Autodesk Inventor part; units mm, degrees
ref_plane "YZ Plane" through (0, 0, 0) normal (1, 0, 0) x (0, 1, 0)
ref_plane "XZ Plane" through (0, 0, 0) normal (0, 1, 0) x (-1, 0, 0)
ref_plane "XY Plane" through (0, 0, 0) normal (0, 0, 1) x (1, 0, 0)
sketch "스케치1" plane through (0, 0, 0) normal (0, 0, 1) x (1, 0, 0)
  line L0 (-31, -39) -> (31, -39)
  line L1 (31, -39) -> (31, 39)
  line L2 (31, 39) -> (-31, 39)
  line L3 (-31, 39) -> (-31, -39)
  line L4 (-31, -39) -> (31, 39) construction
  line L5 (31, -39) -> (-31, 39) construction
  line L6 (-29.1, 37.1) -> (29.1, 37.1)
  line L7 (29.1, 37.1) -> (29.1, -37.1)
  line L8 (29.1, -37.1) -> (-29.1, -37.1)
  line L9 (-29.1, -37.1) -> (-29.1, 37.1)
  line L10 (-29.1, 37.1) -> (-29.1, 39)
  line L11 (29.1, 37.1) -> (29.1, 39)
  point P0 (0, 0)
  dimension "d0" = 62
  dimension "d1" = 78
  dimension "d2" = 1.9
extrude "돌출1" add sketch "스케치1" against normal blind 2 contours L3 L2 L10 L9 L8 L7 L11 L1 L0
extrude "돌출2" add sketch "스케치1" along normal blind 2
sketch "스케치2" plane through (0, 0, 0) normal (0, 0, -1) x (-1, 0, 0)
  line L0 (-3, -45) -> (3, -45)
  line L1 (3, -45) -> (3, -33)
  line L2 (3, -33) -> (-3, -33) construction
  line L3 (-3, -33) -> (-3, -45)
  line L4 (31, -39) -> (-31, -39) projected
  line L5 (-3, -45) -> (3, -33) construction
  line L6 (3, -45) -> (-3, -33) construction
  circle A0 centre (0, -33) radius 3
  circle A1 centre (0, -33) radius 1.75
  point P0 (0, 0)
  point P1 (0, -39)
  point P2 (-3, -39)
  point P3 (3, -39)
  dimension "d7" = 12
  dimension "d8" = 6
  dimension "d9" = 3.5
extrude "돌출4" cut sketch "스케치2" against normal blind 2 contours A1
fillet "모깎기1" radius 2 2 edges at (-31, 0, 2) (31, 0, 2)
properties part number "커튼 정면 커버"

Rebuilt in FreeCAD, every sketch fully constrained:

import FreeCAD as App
import Part
import Sketcher
from FreeCAD import Vector


def edges_at(feature, points):
    """Names of the edges that pass closest to the given points."""
    edges = feature.Shape.Edges
    near = lambda p: min(range(len(edges)), key=lambda i: edges[i].distToShape(Part.Vertex(*p))[0])
    return sorted({f"Edge{near(p) + 1}" for p in points})

doc = App.newDocument("Part")
body = doc.addObject("PartDesign::Body", "Body")

# Sketch on XY plane
sketch1 = body.newObject("Sketcher::SketchObject", "Sketch")
sketch1.AttachmentSupport = (doc.getObject("XY_Plane"), [""])
sketch1.MapMode = "FlatFace"
sketch1.addGeometry([
    Part.LineSegment(Vector(-31, 39, 0), Vector(-31, -39, 0)),  # 0
    Part.LineSegment(Vector(-31, -39, 0), Vector(31, -39, 0)),  # 1
    Part.LineSegment(Vector(31, -39, 0), Vector(31, 39, 0)),  # 2
    Part.LineSegment(Vector(31, 39, 0), Vector(29.1, 39, 0)),  # 3
    Part.LineSegment(Vector(29.1, 39, 0), Vector(29.1, -37.1, 0)),  # 4
    Part.LineSegment(Vector(29.1, -37.1, 0), Vector(-29.1, -37.1, 0)),  # 5
    Part.LineSegment(Vector(-29.1, -37.1, 0), Vector(-29.1, 39, 0)),  # 6
    Part.LineSegment(Vector(-29.1, 39, 0), Vector(-31, 39, 0)),  # 7
], False)
sketch1.addConstraint([
    Sketcher.Constraint("Coincident", 0, 2, 1, 1),
    Sketcher.Constraint("Coincident", 1, 2, 2, 1),
    Sketcher.Constraint("Coincident", 2, 2, 3, 1),
    Sketcher.Constraint("Coincident", 3, 2, 4, 1),
    Sketcher.Constraint("Coincident", 4, 2, 5, 1),
    Sketcher.Constraint("Coincident", 5, 2, 6, 1),
    Sketcher.Constraint("Coincident", 6, 2, 7, 1),
    Sketcher.Constraint("Coincident", 7, 2, 0, 1),
    Sketcher.Constraint("Vertical", 0),
    Sketcher.Constraint("Horizontal", 1),
    Sketcher.Constraint("Vertical", 2),
    Sketcher.Constraint("Horizontal", 3),
    Sketcher.Constraint("Vertical", 4),
    Sketcher.Constraint("Horizontal", 5),
    Sketcher.Constraint("Vertical", 6),
    Sketcher.Constraint("Horizontal", 7),
    Sketcher.Constraint("Symmetric", 0, 2, 2, 2, -1, 1),
    Sketcher.Constraint("Symmetric", 3, 2, 6, 2, -2),
    Sketcher.Constraint("DistanceX", 1, 1, 1, 2, 62.0),
    Sketcher.Constraint("DistanceY", 0, 2, 0, 1, 78.0),
    Sketcher.Constraint("DistanceX", 3, 2, 3, 1, 1.9),
    Sketcher.Constraint("DistanceY", 1, 2, 4, 2, 1.9),
])
pad1 = body.newObject("PartDesign::Pad", "Pad")
pad1.Profile = sketch1
pad1.Length = 2
pad1.Reversed = True

# Sketch on XY plane
sketch2 = body.newObject("Sketcher::SketchObject", "Sketch001")
sketch2.AttachmentSupport = (doc.getObject("XY_Plane"), [""])
sketch2.MapMode = "FlatFace"
sketch2.addGeometry([
    Part.LineSegment(Vector(-31, 39, 0), Vector(-31, -39, 0)),
    Part.LineSegment(Vector(-31, -39, 0), Vector(31, -39, 0)),
    Part.LineSegment(Vector(31, -39, 0), Vector(31, 39, 0)),
    Part.LineSegment(Vector(31, 39, 0), Vector(-31, 39, 0)),
], False)
sketch2.addConstraint([
    Sketcher.Constraint("Coincident", 0, 2, 1, 1),
    Sketcher.Constraint("Coincident", 1, 2, 2, 1),
    Sketcher.Constraint("Coincident", 2, 2, 3, 1),
    Sketcher.Constraint("Coincident", 3, 2, 0, 1),
    Sketcher.Constraint("Vertical", 0),
    Sketcher.Constraint("Horizontal", 1),
    Sketcher.Constraint("Vertical", 2),
    Sketcher.Constraint("Horizontal", 3),
    Sketcher.Constraint("Symmetric", 0, 2, 2, 2, -1, 1),
    Sketcher.Constraint("DistanceX", 1, 1, 1, 2, 62.0),
    Sketcher.Constraint("DistanceY", 0, 2, 0, 1, 78.0),
])
pad2 = body.newObject("PartDesign::Pad", "Pad001")
pad2.Profile = sketch2
pad2.Length = 2

# Sketch on XY plane
sketch3 = body.newObject("Sketcher::SketchObject", "Sketch002")
sketch3.AttachmentSupport = (doc.getObject("XY_Plane"), [""])
sketch3.MapMode = "FlatFace"
sketch3.addGeometry(Part.Circle(Vector(0, -33, 0), Vector(0, 0, 1), 1.8), False)
sketch3.addConstraint([
    Sketcher.Constraint("PointOnObject", 0, 3, -2),
    Sketcher.Constraint("Diameter", 0, 3.5),
    Sketcher.Constraint("DistanceY", 0, 3, -1, 1, 33.0),
])
pocket1 = body.newObject("PartDesign::Pocket", "Pocket")
pocket1.Profile = sketch3
pocket1.Length = 2
pocket1.Reversed = True
doc.recompute()

fillet = body.newObject("PartDesign::Fillet", "Fillet")
fillet.Base = (pocket1, edges_at(pocket1, [(-31, 0, 2), (31, 0, 2)]))
fillet.Radius = 2

doc.recompute()
